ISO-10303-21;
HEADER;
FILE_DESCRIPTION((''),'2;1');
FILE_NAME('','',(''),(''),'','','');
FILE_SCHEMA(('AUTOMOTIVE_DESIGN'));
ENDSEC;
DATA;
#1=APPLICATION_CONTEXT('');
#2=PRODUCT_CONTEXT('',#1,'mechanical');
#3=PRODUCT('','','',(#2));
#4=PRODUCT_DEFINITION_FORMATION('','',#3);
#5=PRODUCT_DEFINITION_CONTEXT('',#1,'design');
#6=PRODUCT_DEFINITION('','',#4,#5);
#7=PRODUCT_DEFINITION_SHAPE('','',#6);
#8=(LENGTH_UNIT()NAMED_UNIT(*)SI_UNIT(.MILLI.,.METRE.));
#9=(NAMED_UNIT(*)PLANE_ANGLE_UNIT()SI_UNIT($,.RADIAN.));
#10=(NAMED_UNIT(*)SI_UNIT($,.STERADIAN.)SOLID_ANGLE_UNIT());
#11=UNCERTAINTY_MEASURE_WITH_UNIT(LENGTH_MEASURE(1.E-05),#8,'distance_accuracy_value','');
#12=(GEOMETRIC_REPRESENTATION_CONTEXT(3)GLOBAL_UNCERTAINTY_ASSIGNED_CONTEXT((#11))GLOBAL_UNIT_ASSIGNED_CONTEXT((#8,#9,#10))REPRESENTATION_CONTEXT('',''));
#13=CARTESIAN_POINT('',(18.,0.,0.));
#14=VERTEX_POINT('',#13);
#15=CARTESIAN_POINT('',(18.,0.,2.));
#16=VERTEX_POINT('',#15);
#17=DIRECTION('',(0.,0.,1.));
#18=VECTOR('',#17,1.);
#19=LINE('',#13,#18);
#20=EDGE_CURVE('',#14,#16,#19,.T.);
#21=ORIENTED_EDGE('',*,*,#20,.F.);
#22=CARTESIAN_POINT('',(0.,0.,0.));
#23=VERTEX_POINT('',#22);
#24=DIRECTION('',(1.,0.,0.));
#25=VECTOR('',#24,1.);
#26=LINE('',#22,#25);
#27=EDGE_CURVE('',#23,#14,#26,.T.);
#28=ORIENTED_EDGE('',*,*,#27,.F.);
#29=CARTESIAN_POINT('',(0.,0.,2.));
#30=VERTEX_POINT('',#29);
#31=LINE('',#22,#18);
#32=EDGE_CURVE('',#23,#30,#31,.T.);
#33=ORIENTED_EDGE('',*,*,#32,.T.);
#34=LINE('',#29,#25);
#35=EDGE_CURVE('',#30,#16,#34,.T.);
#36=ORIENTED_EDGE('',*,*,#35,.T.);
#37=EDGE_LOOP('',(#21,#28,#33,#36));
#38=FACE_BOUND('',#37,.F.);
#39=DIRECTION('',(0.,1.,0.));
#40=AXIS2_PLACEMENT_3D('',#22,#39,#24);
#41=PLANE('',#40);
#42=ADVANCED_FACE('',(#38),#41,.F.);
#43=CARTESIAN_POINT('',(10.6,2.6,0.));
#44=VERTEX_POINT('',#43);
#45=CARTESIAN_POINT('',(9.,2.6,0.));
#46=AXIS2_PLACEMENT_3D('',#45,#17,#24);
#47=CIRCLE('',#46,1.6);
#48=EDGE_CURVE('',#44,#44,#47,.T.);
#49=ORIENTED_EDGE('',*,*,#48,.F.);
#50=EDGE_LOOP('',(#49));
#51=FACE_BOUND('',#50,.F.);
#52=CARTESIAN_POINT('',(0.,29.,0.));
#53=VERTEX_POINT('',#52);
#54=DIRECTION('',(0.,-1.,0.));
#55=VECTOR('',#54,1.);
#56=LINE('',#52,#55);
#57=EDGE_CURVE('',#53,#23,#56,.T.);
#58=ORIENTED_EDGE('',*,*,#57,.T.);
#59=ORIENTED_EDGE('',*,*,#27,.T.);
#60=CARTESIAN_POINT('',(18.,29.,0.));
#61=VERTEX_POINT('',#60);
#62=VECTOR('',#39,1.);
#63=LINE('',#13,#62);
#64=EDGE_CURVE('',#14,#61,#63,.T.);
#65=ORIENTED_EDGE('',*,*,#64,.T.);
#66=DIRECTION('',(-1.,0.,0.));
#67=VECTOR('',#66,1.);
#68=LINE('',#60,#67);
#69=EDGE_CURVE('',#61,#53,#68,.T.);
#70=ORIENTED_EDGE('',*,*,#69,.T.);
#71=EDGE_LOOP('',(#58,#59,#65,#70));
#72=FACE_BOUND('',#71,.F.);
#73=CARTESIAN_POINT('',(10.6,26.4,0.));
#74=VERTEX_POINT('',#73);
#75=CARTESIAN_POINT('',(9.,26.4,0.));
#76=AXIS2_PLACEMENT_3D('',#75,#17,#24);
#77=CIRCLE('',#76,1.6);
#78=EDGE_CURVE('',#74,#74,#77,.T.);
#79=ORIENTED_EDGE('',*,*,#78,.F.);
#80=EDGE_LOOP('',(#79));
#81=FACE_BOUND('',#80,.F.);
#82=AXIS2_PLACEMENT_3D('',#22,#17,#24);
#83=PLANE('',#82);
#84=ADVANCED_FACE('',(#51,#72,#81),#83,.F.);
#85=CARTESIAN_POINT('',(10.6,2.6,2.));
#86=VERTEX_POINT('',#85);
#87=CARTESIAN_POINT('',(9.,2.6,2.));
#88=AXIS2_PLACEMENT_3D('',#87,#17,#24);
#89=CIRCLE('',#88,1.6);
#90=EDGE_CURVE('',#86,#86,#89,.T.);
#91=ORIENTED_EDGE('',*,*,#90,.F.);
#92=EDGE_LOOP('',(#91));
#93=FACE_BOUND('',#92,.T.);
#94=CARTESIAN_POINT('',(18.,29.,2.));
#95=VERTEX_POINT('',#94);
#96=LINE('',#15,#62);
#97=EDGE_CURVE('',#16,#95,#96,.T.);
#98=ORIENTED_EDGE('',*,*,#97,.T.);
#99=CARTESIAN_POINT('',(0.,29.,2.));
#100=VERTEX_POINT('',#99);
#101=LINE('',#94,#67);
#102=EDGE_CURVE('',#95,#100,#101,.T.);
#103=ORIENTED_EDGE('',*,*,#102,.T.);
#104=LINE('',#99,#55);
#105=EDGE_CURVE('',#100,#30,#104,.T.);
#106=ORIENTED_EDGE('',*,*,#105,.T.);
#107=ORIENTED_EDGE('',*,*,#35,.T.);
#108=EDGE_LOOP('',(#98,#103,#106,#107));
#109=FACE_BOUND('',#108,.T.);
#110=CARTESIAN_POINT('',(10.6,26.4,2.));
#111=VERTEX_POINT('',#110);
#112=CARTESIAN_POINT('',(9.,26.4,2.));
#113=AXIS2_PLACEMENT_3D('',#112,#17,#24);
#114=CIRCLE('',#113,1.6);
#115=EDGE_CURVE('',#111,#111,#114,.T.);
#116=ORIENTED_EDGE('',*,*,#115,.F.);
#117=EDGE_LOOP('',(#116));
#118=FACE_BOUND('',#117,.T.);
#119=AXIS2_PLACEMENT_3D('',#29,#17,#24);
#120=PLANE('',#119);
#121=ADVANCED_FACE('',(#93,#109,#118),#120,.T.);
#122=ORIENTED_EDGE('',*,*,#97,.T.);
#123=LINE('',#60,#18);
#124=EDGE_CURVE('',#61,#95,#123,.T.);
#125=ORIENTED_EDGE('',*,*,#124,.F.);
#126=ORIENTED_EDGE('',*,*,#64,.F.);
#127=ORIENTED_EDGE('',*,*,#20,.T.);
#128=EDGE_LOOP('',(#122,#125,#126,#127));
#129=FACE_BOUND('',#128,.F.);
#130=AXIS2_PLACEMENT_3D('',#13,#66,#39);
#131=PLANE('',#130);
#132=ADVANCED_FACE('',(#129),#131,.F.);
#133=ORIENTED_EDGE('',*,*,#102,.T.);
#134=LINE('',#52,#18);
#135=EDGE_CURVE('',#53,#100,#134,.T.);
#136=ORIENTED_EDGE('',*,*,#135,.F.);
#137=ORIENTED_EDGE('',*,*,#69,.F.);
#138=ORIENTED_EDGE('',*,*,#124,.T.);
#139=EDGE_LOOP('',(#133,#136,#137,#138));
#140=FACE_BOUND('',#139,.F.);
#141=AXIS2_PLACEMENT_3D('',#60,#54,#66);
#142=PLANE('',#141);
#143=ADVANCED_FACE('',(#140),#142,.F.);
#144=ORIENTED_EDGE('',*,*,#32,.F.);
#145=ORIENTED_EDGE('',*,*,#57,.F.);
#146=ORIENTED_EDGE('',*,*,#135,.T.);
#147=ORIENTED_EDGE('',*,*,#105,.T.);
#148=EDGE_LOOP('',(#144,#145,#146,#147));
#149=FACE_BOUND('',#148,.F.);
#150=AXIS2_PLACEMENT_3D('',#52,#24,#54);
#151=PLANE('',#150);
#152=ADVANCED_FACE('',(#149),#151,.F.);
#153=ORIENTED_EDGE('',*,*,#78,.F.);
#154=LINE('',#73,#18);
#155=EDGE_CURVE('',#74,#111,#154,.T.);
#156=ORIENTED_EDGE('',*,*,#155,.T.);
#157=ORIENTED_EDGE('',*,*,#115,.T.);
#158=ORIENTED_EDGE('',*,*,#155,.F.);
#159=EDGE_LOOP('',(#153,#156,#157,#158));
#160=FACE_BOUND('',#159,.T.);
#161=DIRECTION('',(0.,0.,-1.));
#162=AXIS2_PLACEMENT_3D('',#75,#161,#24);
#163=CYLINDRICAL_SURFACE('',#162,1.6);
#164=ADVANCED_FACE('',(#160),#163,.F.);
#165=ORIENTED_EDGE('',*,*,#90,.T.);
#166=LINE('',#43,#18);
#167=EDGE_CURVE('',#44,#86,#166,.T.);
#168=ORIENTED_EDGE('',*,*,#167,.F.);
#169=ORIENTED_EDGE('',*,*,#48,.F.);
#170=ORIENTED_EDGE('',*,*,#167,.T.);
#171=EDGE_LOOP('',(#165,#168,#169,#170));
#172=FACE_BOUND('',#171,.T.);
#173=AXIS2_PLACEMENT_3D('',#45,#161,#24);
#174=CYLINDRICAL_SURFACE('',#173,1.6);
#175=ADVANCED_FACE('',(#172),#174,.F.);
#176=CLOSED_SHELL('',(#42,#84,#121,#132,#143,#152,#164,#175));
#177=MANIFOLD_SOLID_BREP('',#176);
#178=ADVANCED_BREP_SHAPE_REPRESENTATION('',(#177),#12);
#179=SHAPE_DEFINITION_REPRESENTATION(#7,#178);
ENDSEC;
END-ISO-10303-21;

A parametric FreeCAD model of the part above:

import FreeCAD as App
import Part
import Sketcher

V = App.Vector
Q = App.Units.Quantity


def add_polygon(sketch, points):
    """Adds a closed chain of lines whose ends are joined by coincident constraints."""
    first, n = sketch.GeometryCount, len(points)
    for a, b in zip(points, points[1:] + points[:1]):
        sketch.addGeometry(Part.LineSegment(App.Vector(*a, 0), App.Vector(*b, 0)), False)
    for i in range(n):
        sketch.addConstraint(Sketcher.Constraint("Coincident", first + i, 2, first + (i + 1) % n, 1))

doc = App.newDocument("Part")
body = doc.addObject("PartDesign::Body", "Body")

sketch1 = body.newObject("Sketcher::SketchObject", "Sketch")
sketch1.AttachmentSupport = (doc.getObject("XY_Plane"), [""])
sketch1.MapMode = "FlatFace"
add_polygon(sketch1, [(0, 29), (0, 0), (18, 0), (18, 29)])
sketch1.addGeometry(Part.Circle(V(9, 2.6, 0), V(0, 0, 1), 1.6), False)
sketch1.addGeometry(Part.Circle(V(9, 26.4, 0), V(0, 0, 1), 1.6), False)
sketch1.addConstraint([
    Sketcher.Constraint("Vertical", 0),
    Sketcher.Constraint("Horizontal", 1),
    Sketcher.Constraint("Vertical", 2),
    Sketcher.Constraint("Horizontal", 3),
    Sketcher.Constraint("Coincident", 0, 2, -1, 1),
    Sketcher.Constraint("Equal", 4, 5),
    Sketcher.Constraint("Vertical", 4, 3, 5, 3),
    Sketcher.Constraint("Diameter", 4, Q("3.2 mm")),
    Sketcher.Constraint("DistanceX", 1, 1, 1, 2, Q("18 mm")),
    Sketcher.Constraint("DistanceY", 0, 2, 0, 1, Q("29 mm")),
    Sketcher.Constraint("DistanceY", -1, 1, 4, 3, Q("2.6 mm")),
    Sketcher.Constraint("DistanceY", 5, 3, 2, 2, Q("2.6 mm")),
    Sketcher.Constraint("DistanceX", -1, 1, 4, 3, Q("9 mm")),
])
pad1 = body.newObject("PartDesign::Pad", "Pad")
pad1.Profile = sketch1
pad1.Length = 2

doc.recompute()
